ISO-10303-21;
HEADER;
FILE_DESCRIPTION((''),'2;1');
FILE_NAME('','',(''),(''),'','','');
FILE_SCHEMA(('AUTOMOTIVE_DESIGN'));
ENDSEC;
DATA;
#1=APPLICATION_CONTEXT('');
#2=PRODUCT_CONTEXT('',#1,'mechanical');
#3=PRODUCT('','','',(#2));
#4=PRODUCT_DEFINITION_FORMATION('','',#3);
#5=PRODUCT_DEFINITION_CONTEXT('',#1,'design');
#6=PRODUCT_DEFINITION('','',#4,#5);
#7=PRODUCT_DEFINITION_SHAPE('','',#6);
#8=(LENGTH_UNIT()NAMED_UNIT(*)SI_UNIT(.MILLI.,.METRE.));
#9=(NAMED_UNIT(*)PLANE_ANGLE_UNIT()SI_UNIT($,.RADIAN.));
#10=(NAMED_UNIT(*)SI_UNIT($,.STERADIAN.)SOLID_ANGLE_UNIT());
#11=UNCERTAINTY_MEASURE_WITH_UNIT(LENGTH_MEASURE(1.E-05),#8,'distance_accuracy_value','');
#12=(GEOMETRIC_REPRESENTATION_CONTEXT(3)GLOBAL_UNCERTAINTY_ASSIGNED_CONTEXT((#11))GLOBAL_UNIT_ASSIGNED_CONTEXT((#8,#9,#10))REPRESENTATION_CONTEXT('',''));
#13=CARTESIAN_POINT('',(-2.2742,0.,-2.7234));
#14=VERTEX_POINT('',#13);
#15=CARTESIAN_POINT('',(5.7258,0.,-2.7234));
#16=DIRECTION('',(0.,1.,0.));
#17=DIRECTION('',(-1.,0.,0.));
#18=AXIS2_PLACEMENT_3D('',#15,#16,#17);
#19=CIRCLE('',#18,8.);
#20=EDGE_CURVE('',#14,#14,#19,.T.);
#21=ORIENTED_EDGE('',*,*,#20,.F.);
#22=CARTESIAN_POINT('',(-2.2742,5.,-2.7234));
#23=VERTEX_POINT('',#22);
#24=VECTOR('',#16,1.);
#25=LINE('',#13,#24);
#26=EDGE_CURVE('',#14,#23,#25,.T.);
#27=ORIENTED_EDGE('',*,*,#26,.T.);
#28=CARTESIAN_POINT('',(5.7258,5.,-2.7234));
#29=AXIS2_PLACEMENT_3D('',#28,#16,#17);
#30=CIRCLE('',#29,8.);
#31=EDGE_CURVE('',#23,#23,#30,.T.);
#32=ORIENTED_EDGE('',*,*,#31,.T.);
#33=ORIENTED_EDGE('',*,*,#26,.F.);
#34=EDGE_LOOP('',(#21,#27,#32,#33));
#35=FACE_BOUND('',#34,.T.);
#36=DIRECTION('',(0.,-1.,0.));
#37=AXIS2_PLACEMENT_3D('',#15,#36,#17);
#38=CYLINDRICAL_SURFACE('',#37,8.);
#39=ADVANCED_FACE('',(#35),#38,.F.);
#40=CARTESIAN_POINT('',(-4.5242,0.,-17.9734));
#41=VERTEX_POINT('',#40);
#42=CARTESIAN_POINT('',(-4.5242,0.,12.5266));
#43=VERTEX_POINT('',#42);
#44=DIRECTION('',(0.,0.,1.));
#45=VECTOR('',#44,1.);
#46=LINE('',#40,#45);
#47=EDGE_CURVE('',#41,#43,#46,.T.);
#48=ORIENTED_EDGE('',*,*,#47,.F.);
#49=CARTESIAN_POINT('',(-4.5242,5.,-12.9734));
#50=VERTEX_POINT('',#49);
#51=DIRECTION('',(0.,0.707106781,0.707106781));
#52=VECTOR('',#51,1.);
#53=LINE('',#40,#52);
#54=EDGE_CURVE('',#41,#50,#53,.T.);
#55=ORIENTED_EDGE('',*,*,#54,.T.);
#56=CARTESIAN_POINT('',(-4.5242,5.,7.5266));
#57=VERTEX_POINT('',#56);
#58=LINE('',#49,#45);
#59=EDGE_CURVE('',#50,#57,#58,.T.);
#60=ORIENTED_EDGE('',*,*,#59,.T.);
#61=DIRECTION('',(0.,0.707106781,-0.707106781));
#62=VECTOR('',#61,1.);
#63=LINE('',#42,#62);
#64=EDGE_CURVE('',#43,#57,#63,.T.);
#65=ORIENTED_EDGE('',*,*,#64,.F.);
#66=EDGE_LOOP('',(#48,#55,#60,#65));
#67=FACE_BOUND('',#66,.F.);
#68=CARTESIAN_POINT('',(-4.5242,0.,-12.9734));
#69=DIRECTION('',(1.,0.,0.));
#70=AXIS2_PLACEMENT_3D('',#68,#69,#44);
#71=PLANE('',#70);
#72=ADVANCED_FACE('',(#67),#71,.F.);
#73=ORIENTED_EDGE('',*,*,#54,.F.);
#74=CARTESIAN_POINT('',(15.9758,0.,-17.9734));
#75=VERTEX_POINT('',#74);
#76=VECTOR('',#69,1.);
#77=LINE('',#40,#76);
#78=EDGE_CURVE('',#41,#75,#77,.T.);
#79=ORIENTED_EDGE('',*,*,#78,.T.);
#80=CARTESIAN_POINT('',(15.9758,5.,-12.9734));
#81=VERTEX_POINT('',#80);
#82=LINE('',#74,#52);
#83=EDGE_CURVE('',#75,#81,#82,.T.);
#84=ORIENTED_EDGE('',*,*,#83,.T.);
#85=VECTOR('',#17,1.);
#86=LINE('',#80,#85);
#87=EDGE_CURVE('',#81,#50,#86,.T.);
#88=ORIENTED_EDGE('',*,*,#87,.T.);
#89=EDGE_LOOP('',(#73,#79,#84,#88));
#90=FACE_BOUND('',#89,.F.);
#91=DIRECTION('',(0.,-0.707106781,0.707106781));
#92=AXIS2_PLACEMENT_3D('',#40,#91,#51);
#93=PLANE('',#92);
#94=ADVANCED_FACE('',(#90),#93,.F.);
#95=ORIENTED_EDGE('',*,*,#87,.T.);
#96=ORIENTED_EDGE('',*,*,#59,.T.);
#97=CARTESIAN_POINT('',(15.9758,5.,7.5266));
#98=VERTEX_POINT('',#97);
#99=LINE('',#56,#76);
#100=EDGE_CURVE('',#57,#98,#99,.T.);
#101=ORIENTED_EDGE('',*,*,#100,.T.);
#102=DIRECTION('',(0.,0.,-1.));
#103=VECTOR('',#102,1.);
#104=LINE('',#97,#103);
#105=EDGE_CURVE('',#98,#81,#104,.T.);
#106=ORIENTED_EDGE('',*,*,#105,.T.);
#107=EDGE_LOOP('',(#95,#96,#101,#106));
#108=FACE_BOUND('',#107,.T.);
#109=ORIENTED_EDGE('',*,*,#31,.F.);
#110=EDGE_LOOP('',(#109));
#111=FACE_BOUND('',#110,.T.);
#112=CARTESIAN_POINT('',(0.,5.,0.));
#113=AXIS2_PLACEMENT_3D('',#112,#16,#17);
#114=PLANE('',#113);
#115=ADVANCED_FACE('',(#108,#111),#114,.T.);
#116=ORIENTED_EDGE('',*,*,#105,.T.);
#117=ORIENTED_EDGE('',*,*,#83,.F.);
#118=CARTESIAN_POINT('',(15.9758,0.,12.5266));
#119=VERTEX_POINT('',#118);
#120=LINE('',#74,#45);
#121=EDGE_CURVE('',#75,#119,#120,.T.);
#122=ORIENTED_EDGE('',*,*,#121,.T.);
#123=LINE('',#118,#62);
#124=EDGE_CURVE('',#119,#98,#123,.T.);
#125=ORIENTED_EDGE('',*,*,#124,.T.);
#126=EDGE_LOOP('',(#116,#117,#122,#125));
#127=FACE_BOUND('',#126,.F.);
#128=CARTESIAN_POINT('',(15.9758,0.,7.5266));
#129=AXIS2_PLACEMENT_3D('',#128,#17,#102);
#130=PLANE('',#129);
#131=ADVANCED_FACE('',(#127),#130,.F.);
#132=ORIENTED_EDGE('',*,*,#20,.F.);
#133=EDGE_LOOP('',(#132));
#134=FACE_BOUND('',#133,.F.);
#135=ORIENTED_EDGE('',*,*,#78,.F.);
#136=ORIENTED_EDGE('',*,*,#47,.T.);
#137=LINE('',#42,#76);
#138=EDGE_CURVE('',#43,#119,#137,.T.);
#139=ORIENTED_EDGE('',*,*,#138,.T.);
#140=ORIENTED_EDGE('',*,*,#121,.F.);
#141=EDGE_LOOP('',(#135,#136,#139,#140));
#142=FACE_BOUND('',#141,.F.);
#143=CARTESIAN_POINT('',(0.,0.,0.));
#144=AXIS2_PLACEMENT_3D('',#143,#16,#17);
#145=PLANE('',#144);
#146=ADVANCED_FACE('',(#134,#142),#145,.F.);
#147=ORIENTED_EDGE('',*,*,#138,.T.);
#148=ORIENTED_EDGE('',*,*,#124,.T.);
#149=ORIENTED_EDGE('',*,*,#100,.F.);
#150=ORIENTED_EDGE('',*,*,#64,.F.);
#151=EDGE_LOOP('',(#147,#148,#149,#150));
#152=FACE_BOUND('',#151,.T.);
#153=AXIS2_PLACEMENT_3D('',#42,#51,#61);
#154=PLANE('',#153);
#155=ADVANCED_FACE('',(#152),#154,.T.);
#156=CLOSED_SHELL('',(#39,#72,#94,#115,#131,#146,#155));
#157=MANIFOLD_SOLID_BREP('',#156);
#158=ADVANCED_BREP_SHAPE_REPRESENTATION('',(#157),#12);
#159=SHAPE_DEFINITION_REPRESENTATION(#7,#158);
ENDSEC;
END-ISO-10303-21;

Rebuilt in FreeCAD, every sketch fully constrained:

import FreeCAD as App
import Part
import Sketcher

V = App.Vector

doc = App.newDocument("Part")
body = doc.addObject("PartDesign::Body", "Body")

sketch1 = body.newObject("Sketcher::SketchObject", "Sketch")
sketch1.AttachmentSupport = (doc.getObject("XZ_Plane"), [""])
sketch1.MapMode = "FlatFace"
sketch1.addGeometry(Part.LineSegment(V(-5, -13, 0), V(-5, 8, 0)), False)
sketch1.addGeometry(Part.LineSegment(V(-5, 8, 0), V(16, 8, 0)), False)
sketch1.addGeometry(Part.LineSegment(V(16, 8, 0), V(16, -13, 0)), False)
sketch1.addGeometry(Part.LineSegment(V(16, -13, 0), V(-5, -13, 0)), False)
sketch1.addGeometry(Part.Circle(V(6, -3, 0), V(0, 0, 1), 8), False)
sketch1.addConstraint(Sketcher.Constraint("Coincident", 0, 2, 1, 1))
sketch1.addConstraint(Sketcher.Constraint("Coincident", 1, 2, 2, 1))
sketch1.addConstraint(Sketcher.Constraint("Coincident", 2, 2, 3, 1))
sketch1.addConstraint(Sketcher.Constraint("Coincident", 3, 2, 0, 1))
sketch1.addConstraint(Sketcher.Constraint("Vertical", 0))
sketch1.addConstraint(Sketcher.Constraint("Horizontal", 1))
sketch1.addConstraint(Sketcher.Constraint("Vertical", 2))
sketch1.addConstraint(Sketcher.Constraint("Horizontal", 3))
sketch1.addConstraint(Sketcher.Constraint("Equal", 3, 0))
sketch1.addConstraint(Sketcher.Constraint("Diameter", 4, 16.0))
sketch1.addConstraint(Sketcher.Constraint("DistanceX", 1, 1, 1, 2, 20.5))
sketch1.addConstraint(Sketcher.Constraint("DistanceX", 0, 2, 4, 3, 10.25))
sketch1.addConstraint(Sketcher.Constraint("DistanceY", 4, 3, 0, 2, 10.25))
sketch1.addConstraint(Sketcher.Constraint("DistanceX", -1, 1, 4, 3, 5.7258))
sketch1.addConstraint(Sketcher.Constraint("DistanceY", 4, 3, -1, 1, 2.7234))
pad1 = body.newObject("PartDesign::Pad", "Pad")
pad1.Profile = sketch1
pad1.Length = 5
pad1.Reversed = True

sketch2 = body.newObject("Sketcher::SketchObject", "Sketch001")
sketch2.AttachmentSupport = (doc.getObject("YZ_Plane"), [""])
sketch2.MapMode = "FlatFace"
sketch2.AttachmentOffset = App.Placement(V(0, 0, -4.5242), App.Rotation())
sketch2.addGeometry(Part.LineSegment(V(5, 8, 0), V(0, 8, 0)), False)
sketch2.addGeometry(Part.LineSegment(V(0, 8, 0), V(0, 13, 0)), False)
sketch2.addGeometry(Part.LineSegment(V(0, 13, 0), V(5, 8, 0)), False)
sketch2.addGeometry(Part.LineSegment(V(0, -18, 0), V(0, -13, 0)), False)
sketch2.addGeometry(Part.LineSegment(V(0, -13, 0), V(5, -13, 0)), False)
sketch2.addGeometry(Part.LineSegment(V(5, -13, 0), V(0, -18, 0)), False)
sketch2.addConstraint(Sketcher.Constraint("Coincident", 0, 2, 1, 1))
sketch2.addConstraint(Sketcher.Constraint("Coincident", 1, 2, 2, 1))
sketch2.addConstraint(Sketcher.Constraint("Coincident", 2, 2, 0, 1))
sketch2.addConstraint(Sketcher.Constraint("Coincident", 3, 2, 4, 1))
sketch2.addConstraint(Sketcher.Constraint("Coincident", 4, 2, 5, 1))
sketch2.addConstraint(Sketcher.Constraint("Coincident", 5, 2, 3, 1))
sketch2.addConstraint(Sketcher.Constraint("Horizontal", 0))
sketch2.addConstraint(Sketcher.Constraint("Vertical", 1))
sketch2.addConstraint(Sketcher.Constraint("Vertical", 3))
sketch2.addConstraint(Sketcher.Constraint("Horizontal", 4))
sketch2.addConstraint(Sketcher.Constraint("PointOnObject", 0, 2, -2))
sketch2.addConstraint(Sketcher.Constraint("PointOnObject", 3, 2, -2))
sketch2.addConstraint(Sketcher.Constraint("Perpendicular", 2, 5))
sketch2.addConstraint(Sketcher.Constraint("Vertical", 2, 2, 4, 2))
sketch2.addConstraint(Sketcher.Constraint("Equal", 4, 1))
sketch2.addConstraint(Sketcher.Constraint("DistanceX", 0, 2, 0, 1, 5.0))
sketch2.addConstraint(Sketcher.Constraint("DistanceY", 3, 2, 0, 2, 20.5))
sketch2.addConstraint(Sketcher.Constraint("DistanceY", -1, 1, 0, 2, 7.5266))
pad2 = body.newObject("PartDesign::Pad", "Pad001")
pad2.Profile = sketch2
pad2.Length = 20.5

doc.recompute()
